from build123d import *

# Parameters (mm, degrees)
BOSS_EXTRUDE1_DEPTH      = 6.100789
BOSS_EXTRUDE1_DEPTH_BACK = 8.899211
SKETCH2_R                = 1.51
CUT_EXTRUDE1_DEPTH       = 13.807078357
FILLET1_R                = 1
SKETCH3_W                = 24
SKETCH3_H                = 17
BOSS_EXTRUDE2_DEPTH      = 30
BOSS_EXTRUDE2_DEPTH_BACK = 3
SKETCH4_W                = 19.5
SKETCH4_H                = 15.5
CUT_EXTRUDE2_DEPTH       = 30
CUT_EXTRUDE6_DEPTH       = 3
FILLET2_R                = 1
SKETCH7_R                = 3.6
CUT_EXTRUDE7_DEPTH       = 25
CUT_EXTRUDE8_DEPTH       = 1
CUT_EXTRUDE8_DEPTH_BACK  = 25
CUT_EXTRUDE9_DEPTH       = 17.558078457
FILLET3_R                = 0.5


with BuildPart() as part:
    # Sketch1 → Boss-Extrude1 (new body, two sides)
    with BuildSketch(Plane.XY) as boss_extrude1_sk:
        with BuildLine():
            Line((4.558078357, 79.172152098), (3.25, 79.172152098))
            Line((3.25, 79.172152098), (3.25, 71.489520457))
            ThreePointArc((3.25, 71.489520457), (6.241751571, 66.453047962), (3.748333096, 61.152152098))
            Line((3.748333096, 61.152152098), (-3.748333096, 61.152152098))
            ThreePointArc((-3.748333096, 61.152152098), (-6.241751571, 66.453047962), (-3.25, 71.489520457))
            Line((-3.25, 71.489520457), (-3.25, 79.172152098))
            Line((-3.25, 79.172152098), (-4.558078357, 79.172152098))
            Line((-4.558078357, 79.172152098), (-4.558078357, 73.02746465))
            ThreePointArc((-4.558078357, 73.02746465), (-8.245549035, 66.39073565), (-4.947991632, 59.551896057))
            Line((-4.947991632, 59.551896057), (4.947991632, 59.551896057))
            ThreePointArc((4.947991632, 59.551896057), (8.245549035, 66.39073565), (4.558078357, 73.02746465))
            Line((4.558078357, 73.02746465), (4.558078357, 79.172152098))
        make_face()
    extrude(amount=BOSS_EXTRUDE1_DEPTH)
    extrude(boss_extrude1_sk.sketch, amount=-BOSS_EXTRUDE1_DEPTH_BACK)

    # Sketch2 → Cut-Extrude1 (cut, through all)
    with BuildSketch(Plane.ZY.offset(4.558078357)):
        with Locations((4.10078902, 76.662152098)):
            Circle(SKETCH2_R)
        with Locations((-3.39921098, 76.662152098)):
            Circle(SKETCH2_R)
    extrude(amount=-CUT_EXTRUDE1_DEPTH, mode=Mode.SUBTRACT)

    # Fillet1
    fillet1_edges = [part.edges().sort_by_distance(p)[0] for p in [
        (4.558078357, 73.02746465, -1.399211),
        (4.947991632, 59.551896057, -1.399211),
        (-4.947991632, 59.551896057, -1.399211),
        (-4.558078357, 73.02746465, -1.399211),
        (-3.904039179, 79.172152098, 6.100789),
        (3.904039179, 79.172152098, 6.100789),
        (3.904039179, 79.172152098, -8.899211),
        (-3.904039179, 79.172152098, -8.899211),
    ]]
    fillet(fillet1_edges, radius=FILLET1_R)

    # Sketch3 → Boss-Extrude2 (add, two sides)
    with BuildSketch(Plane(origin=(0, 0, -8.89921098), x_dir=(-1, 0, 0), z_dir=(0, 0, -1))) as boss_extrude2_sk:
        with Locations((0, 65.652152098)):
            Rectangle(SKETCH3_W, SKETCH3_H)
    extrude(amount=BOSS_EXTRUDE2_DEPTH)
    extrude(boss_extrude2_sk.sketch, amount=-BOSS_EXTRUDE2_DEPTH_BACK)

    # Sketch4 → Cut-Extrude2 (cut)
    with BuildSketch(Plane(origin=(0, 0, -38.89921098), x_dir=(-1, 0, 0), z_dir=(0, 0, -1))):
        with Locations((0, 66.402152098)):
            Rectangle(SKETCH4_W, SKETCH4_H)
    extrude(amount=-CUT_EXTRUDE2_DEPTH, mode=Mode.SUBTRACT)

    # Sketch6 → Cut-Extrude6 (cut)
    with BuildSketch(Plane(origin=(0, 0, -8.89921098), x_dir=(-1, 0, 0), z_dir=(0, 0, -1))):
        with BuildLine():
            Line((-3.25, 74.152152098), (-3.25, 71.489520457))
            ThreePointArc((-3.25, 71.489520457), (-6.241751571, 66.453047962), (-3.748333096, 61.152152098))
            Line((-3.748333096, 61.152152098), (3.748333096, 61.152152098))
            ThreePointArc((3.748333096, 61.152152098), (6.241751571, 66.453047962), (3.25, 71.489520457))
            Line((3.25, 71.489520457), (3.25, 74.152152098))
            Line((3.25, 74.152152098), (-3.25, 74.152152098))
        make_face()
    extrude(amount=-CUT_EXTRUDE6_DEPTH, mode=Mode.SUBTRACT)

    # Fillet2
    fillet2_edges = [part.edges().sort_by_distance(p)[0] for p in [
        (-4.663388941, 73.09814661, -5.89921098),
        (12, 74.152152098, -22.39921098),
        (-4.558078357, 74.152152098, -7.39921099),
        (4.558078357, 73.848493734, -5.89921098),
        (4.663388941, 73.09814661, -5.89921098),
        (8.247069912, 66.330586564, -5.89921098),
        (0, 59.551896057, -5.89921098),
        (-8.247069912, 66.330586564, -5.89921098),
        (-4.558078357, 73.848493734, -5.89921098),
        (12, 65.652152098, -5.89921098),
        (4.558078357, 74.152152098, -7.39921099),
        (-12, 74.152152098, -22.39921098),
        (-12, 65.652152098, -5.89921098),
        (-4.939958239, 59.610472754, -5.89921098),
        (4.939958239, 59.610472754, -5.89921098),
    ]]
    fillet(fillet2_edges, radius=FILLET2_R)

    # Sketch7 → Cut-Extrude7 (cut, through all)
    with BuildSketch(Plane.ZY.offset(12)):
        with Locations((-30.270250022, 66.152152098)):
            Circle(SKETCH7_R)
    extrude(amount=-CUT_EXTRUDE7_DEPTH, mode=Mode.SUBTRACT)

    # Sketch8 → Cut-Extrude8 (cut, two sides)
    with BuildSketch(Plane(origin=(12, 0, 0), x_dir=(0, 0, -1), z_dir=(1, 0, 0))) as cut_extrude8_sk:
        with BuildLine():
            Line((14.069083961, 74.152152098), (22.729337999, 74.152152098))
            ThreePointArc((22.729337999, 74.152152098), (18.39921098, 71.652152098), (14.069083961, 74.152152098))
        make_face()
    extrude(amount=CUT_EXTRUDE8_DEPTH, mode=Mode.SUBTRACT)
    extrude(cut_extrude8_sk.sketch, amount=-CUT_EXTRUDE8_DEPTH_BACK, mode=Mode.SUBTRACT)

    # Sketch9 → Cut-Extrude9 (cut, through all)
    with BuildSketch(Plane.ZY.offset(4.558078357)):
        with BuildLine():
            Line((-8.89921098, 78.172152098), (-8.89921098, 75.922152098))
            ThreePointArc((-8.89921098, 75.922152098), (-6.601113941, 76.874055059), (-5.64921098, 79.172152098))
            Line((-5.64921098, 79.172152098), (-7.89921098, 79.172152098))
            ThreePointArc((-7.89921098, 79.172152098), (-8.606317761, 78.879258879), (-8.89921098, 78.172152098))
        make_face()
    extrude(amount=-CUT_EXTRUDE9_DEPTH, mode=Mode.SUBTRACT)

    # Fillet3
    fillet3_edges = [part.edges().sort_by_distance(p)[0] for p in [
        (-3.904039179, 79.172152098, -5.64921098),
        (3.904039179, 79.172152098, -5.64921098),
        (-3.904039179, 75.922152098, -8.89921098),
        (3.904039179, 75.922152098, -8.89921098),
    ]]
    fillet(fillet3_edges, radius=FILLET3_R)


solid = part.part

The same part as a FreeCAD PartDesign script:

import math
import FreeCAD as App
import Part
import Sketcher

V = App.Vector


def edges_at(feature, points):
    """Names of the edges that pass closest to the given points."""
    edges = feature.Shape.Edges
    near = lambda p: min(range(len(edges)), key=lambda i: edges[i].distToShape(Part.Vertex(*p))[0])
    return sorted({f"Edge{near(p) + 1}" for p in points})


def add_polygon(sketch, points):
    """Adds a closed chain of lines whose ends are joined by coincident constraints."""
    first, n = sketch.GeometryCount, len(points)
    for a, b in zip(points, points[1:] + points[:1]):
        sketch.addGeometry(Part.LineSegment(App.Vector(*a, 0), App.Vector(*b, 0)), False)
    for i in range(n):
        sketch.addConstraint(Sketcher.Constraint("Coincident", first + i, 2, first + (i + 1) % n, 1))

doc = App.newDocument("Part")
body = doc.addObject("PartDesign::Body", "Body")

sketch1 = body.newObject("Sketcher::SketchObject", "Sketch")
sketch1.AttachmentSupport = (doc.getObject("XY_Plane"), [""])
sketch1.MapMode = "FlatFace"
sketch1.addGeometry(Part.LineSegment(V(4.6, 79.2, 0), V(3.2, 79.2, 0)), False)
sketch1.addGeometry(Part.LineSegment(V(3.2, 79.2, 0), V(3.2, 71.5, 0)), False)
sketch1.addGeometry(Part.ArcOfCircle(Part.Circle(V(0, 66.2, 0), V(0, 0, 1), 6.2), math.radians(-53), math.radians(59)), False)
sketch1.addGeometry(Part.LineSegment(V(3.7, 61.2, 0), V(-3.7, 61.2, 0)), False)
sketch1.addGeometry(Part.ArcOfCircle(Part.Circle(V(0, 66.2, 0), V(0, 0, 1), 6.2), math.radians(121), math.radians(233)), False)
sketch1.addGeometry(Part.LineSegment(V(-3.2, 71.5, 0), V(-3.2, 79.2, 0)), False)
sketch1.addGeometry(Part.LineSegment(V(-3.2, 79.2, 0), V(-4.6, 79.2, 0)), False)
sketch1.addGeometry(Part.LineSegment(V(-4.6, 79.2, 0), V(-4.6, 73, 0)), False)
sketch1.addGeometry(Part.ArcOfCircle(Part.Circle(V(0, 66.2, 0), V(0, 0, 1), 8.2), math.radians(124), math.radians(233)), False)
sketch1.addGeometry(Part.LineSegment(V(-4.9, 59.6, 0), V(4.9, 59.6, 0)), False)
sketch1.addGeometry(Part.ArcOfCircle(Part.Circle(V(0, 66.2, 0), V(0, 0, 1), 8.2), math.radians(-53), math.radians(56)), False)
sketch1.addGeometry(Part.LineSegment(V(4.6, 73, 0), V(4.6, 79.2, 0)), False)
sketch1.addConstraint(Sketcher.Constraint("Coincident", 0, 2, 1, 1))
sketch1.addConstraint(Sketcher.Constraint("Coincident", 1, 2, 2, 2))
sketch1.addConstraint(Sketcher.Constraint("Coincident", 2, 1, 3, 1))
sketch1.addConstraint(Sketcher.Constraint("Coincident", 3, 2, 4, 2))
sketch1.addConstraint(Sketcher.Constraint("Coincident", 4, 1, 5, 1))
sketch1.addConstraint(Sketcher.Constraint("Coincident", 5, 2, 6, 1))
sketch1.addConstraint(Sketcher.Constraint("Coincident", 6, 2, 7, 1))
sketch1.addConstraint(Sketcher.Constraint("Coincident", 7, 2, 8, 1))
sketch1.addConstraint(Sketcher.Constraint("Coincident", 8, 2, 9, 1))
sketch1.addConstraint(Sketcher.Constraint("Coincident", 9, 2, 10, 1))
sketch1.addConstraint(Sketcher.Constraint("Coincident", 10, 2, 11, 1))
sketch1.addConstraint(Sketcher.Constraint("Coincident", 11, 2, 0, 1))
sketch1.addConstraint(Sketcher.Constraint("Horizontal", 0))
sketch1.addConstraint(Sketcher.Constraint("Vertical", 1))
sketch1.addConstraint(Sketcher.Constraint("Horizontal", 3))
sketch1.addConstraint(Sketcher.Constraint("Vertical", 5))
sketch1.addConstraint(Sketcher.Constraint("Horizontal", 6))
sketch1.addConstraint(Sketcher.Constraint("Vertical", 7))
sketch1.addConstraint(Sketcher.Constraint("Horizontal", 9))
sketch1.addConstraint(Sketcher.Constraint("Vertical", 11))
sketch1.addConstraint(Sketcher.Constraint("Coincident", 4, 3, 2, 3))
sketch1.addConstraint(Sketcher.Constraint("Coincident", 8, 3, 2, 3))
sketch1.addConstraint(Sketcher.Constraint("Coincident", 10, 3, 2, 3))
sketch1.addConstraint(Sketcher.Constraint("Equal", 2, 4))
sketch1.addConstraint(Sketcher.Constraint("Equal", 8, 10))
sketch1.addConstraint(Sketcher.Constraint("Symmetric", 1, 2, 4, 1, -2))
sketch1.addConstraint(Sketcher.Constraint("Symmetric", 6, 2, 11, 2, -2))
sketch1.addConstraint(Sketcher.Constraint("Radius", 2, 6.249))
sketch1.addConstraint(Sketcher.Constraint("Radius", 8, 8.249))
sketch1.addConstraint(Sketcher.Constraint("DistanceY", 2, 1, 4, 3, 5.0))
sketch1.addConstraint(Sketcher.Constraint("DistanceX", 4, 1, 1, 2, 6.5))
sketch1.addConstraint(Sketcher.Constraint("DistanceY", 4, 3, 0, 2, 13.02))
sketch1.addConstraint(Sketcher.Constraint("DistanceX", 0, 2, 0, 1, 1.308078))
sketch1.addConstraint(Sketcher.Constraint("DistanceX", 9, 1, 9, 2, 9.895983))
sketch1.addConstraint(Sketcher.Constraint("DistanceY", -1, 1, 1, 2, 71.48952))
pad1 = body.newObject("PartDesign::Pad", "Pad")
pad1.Profile = sketch1
pad1.Type = "TwoLengths"
pad1.Length = 6.100789
pad1.Length2 = 8.899211

sketch2 = body.newObject("Sketcher::SketchObject", "Sketch001")
sketch2.AttachmentSupport = (doc.getObject("YZ_Plane"), [""])
sketch2.MapMode = "FlatFace"
sketch2.AttachmentOffset = App.Placement(V(0, 0, -4.558078), App.Rotation())
sketch2.addGeometry(Part.Circle(V(76.7, 4.1, 0), V(0, 0, 1), 1.5), False)
sketch2.addGeometry(Part.Circle(V(76.7, -3.4, 0), V(0, 0, 1), 1.5), False)
sketch2.addConstraint(Sketcher.Constraint("Equal", 0, 1))
sketch2.addConstraint(Sketcher.Constraint("Vertical", 0, 3, 1, 3))
sketch2.addConstraint(Sketcher.Constraint("Diameter", 0, 3.02))
sketch2.addConstraint(Sketcher.Constraint("DistanceY", 1, 3, 0, 3, 7.5))
sketch2.addConstraint(Sketcher.Constraint("DistanceY", -1, 1, 0, 3, 4.100789))
sketch2.addConstraint(Sketcher.Constraint("DistanceX", -1, 1, 0, 3, 76.662152))
pocket1 = body.newObject("PartDesign::Pocket", "Pocket")
pocket1.Profile = sketch2
pocket1.Type = "ThroughAll"
pocket1.Reversed = True
doc.recompute()

fillet = body.newObject("PartDesign::Fillet", "Fillet")
fillet.Base = (pocket1, edges_at(pocket1, [
    (4.558, 73.027, -1.399),
    (4.948, 59.552, -1.399),
    (-4.948, 59.552, -1.399),
    (-4.558, 73.027, -1.399),
    (-3.904, 79.172, 6.101),
    (3.904, 79.172, 6.101),
    (3.904, 79.172, -8.899),
    (-3.904, 79.172, -8.899),
]))
fillet.Radius = 1

sketch3 = body.newObject("Sketcher::SketchObject", "Sketch002")
sketch3.AttachmentSupport = (doc.getObject("XY_Plane"), [""])
sketch3.MapMode = "FlatFace"
sketch3.AttachmentOffset = App.Placement(V(0, 0, -8.899211), App.Rotation())
add_polygon(sketch3, [(12, 74), (12, 57), (-12, 57), (-12, 74)])
sketch3.addConstraint(Sketcher.Constraint("Vertical", 0))
sketch3.addConstraint(Sketcher.Constraint("Horizontal", 1))
sketch3.addConstraint(Sketcher.Constraint("Vertical", 2))
sketch3.addConstraint(Sketcher.Constraint("Horizontal", 3))
sketch3.addConstraint(Sketcher.Constraint("DistanceX", 1, 2, 1, 1, 24.0))
sketch3.addConstraint(Sketcher.Constraint("DistanceY", 0, 2, 0, 1, 17.0))
sketch3.addConstraint(Sketcher.Constraint("DistanceX", -1, 1, 0, 2, 12.0))
sketch3.addConstraint(Sketcher.Constraint("DistanceY", -1, 1, 0, 2, 57.152152))
pad2 = body.newObject("PartDesign::Pad", "Pad001")
pad2.Profile = sketch3
pad2.Type = "TwoLengths"
pad2.Length = 30
pad2.Length2 = 3
pad2.Reversed = True

sketch4 = body.newObject("Sketcher::SketchObject", "Sketch003")
sketch4.AttachmentSupport = (doc.getObject("XY_Plane"), [""])
sketch4.MapMode = "FlatFace"
sketch4.AttachmentOffset = App.Placement(V(0, 0, -38.899211), App.Rotation())
add_polygon(sketch4, [(10, 74), (10, 59), (-10, 59), (-10, 74)])
sketch4.addConstraint(Sketcher.Constraint("Vertical", 0))
sketch4.addConstraint(Sketcher.Constraint("Horizontal", 1))
sketch4.addConstraint(Sketcher.Constraint("Vertical", 2))
sketch4.addConstraint(Sketcher.Constraint("Horizontal", 3))
sketch4.addConstraint(Sketcher.Constraint("DistanceX", 1, 2, 1, 1, 19.5))
sketch4.addConstraint(Sketcher.Constraint("DistanceY", 0, 2, 0, 1, 15.5))
sketch4.addConstraint(Sketcher.Constraint("DistanceX", -1, 1, 0, 2, 9.75))
sketch4.addConstraint(Sketcher.Constraint("DistanceY", -1, 1, 0, 2, 58.652152))
pocket2 = body.newObject("PartDesign::Pocket", "Pocket001")
pocket2.Profile = sketch4
pocket2.Length = 30
pocket2.Reversed = True

sketch5 = body.newObject("Sketcher::SketchObject", "Sketch004")
sketch5.AttachmentSupport = (doc.getObject("XY_Plane"), [""])
sketch5.MapMode = "FlatFace"
sketch5.AttachmentOffset = App.Placement(V(0, 0, -8.899211), App.Rotation())
sketch5.addGeometry(Part.LineSegment(V(3.2, 74.2, 0), V(3.2, 71.5, 0)), False)
sketch5.addGeometry(Part.ArcOfCircle(Part.Circle(V(0, 66.2, 0), V(0, 0, 1), 6.2), math.radians(-53), math.radians(59)), False)
sketch5.addGeometry(Part.LineSegment(V(3.7, 61.2, 0), V(-3.7, 61.2, 0)), False)
sketch5.addGeometry(Part.ArcOfCircle(Part.Circle(V(0, 66.2, 0), V(0, 0, 1), 6.2), math.radians(121), math.radians(233)), False)
sketch5.addGeometry(Part.LineSegment(V(-3.2, 71.5, 0), V(-3.2, 74.2, 0)), False)
sketch5.addGeometry(Part.LineSegment(V(-3.2, 74.2, 0), V(3.2, 74.2, 0)), False)
sketch5.addConstraint(Sketcher.Constraint("Coincident", 0, 2, 1, 2))
sketch5.addConstraint(Sketcher.Constraint("Coincident", 1, 1, 2, 1))
sketch5.addConstraint(Sketcher.Constraint("Coincident", 2, 2, 3, 2))
sketch5.addConstraint(Sketcher.Constraint("Coincident", 3, 1, 4, 1))
sketch5.addConstraint(Sketcher.Constraint("Coincident", 4, 2, 5, 1))
sketch5.addConstraint(Sketcher.Constraint("Coincident", 5, 2, 0, 1))
sketch5.addConstraint(Sketcher.Constraint("Vertical", 0))
sketch5.addConstraint(Sketcher.Constraint("Horizontal", 2))
sketch5.addConstraint(Sketcher.Constraint("Vertical", 4))
sketch5.addConstraint(Sketcher.Constraint("Horizontal", 5))
sketch5.addConstraint(Sketcher.Constraint("Coincident", 3, 3, 1, 3))
sketch5.addConstraint(Sketcher.Constraint("Equal", 1, 3))
sketch5.addConstraint(Sketcher.Constraint("Symmetric", 0, 2, 3, 1, -2))
sketch5.addConstraint(Sketcher.Constraint("DistanceX", 5, 1, 5, 2, 6.5))
sketch5.addConstraint(Sketcher.Constraint("Radius", 1, 6.249))
sketch5.addConstraint(Sketcher.Constraint("DistanceY", 1, 1, 3, 3, 5.0))
sketch5.addConstraint(Sketcher.Constraint("DistanceY", 1, 3, 4, 2, 8.0))
sketch5.addConstraint(Sketcher.Constraint("DistanceY", -1, 1, 0, 2, 71.48952))
pocket3 = body.newObject("PartDesign::Pocket", "Pocket002")
pocket3.Profile = sketch5
pocket3.Length = 3
pocket3.Reversed = True
doc.recompute()

fillet2 = body.newObject("PartDesign::Fillet", "Fillet001")
fillet2.Base = (pocket3, edges_at(pocket3, [
    (-4.663, 73.098, -5.899),
    (12, 74.152, -22.399),
    (-4.558, 74.152, -7.399),
    (4.558, 73.848, -5.899),
    (4.663, 73.098, -5.899),
    (8.247, 66.331, -5.899),
    (0, 59.552, -5.899),
    (-8.247, 66.331, -5.899),
    (-4.558, 73.848, -5.899),
    (12, 65.652, -5.899),
    (4.558, 74.152, -7.399),
    (-12, 74.152, -22.399),
    (-12, 65.652, -5.899),
    (-4.94, 59.61, -5.899),
    (4.94, 59.61, -5.899),
]))
fillet2.Radius = 1

sketch6 = body.newObject("Sketcher::SketchObject", "Sketch005")
sketch6.AttachmentSupport = (doc.getObject("YZ_Plane"), [""])
sketch6.MapMode = "FlatFace"
sketch6.AttachmentOffset = App.Placement(V(0, 0, -12), App.Rotation())
sketch6.addGeometry(Part.Circle(V(66.2, -30.3, 0), V(0, 0, 1), 3.6), False)
sketch6.addConstraint(Sketcher.Constraint("Diameter", 0, 7.2))
sketch6.addConstraint(Sketcher.Constraint("DistanceY", 0, 3, -1, 1, 30.27025))
sketch6.addConstraint(Sketcher.Constraint("DistanceX", -1, 1, 0, 3, 66.152152))
pocket4 = body.newObject("PartDesign::Pocket", "Pocket003")
pocket4.Profile = sketch6
pocket4.Type = "ThroughAll"
pocket4.Reversed = True

sketch7 = body.newObject("Sketcher::SketchObject", "Sketch006")
sketch7.AttachmentSupport = (doc.getObject("YZ_Plane"), [""])
sketch7.MapMode = "FlatFace"
sketch7.AttachmentOffset = App.Placement(V(0, 0, 12), App.Rotation())
sketch7.addGeometry(Part.LineSegment(V(74, -23, 0), V(74, -14, 0)), False)
sketch7.addGeometry(Part.ArcOfCircle(Part.Circle(V(77, -18, 0), V(0, 0, 1), 5), math.radians(120), math.radians(240)), False)
sketch7.addConstraint(Sketcher.Constraint("Coincident", 0, 1, 1, 2))
sketch7.addConstraint(Sketcher.Constraint("Coincident", 1, 1, 0, 2))
sketch7.addConstraint(Sketcher.Constraint("Vertical", 0))
sketch7.addConstraint(Sketcher.Constraint("Radius", 1, 5.0))
sketch7.addConstraint(Sketcher.Constraint("DistanceX", 0, 1, 1, 3, 2.5))
sketch7.addConstraint(Sketcher.Constraint("DistanceY", 1, 3, -1, 1, 18.399211))
sketch7.addConstraint(Sketcher.Constraint("DistanceX", -1, 1, 1, 3, 76.652152))
pocket5 = body.newObject("PartDesign::Pocket", "Pocket004")
pocket5.Profile = sketch7
pocket5.Type = "ThroughAll"
pocket5.Midplane = True

sketch8 = body.newObject("Sketcher::SketchObject", "Sketch007")
sketch8.AttachmentSupport = (doc.getObject("YZ_Plane"), [""])
sketch8.MapMode = "FlatFace"
sketch8.AttachmentOffset = App.Placement(V(0, 0, -4.558078), App.Rotation())
sketch8.addGeometry(Part.LineSegment(V(78.2, -8.9, 0), V(75.9, -8.9, 0)), False)
sketch8.addGeometry(Part.ArcOfCircle(Part.Circle(V(79.2, -8.9, 0), V(0, 0, 1), 3.2), math.radians(90), math.radians(180)), False)
sketch8.addGeometry(Part.LineSegment(V(79.2, -5.6, 0), V(79.2, -7.9, 0)), False)
sketch8.addGeometry(Part.ArcOfCircle(Part.Circle(V(78.2, -7.9, 0), V(0, 0, 1), 1), math.radians(-90), math.radians(0)), False)
sketch8.addConstraint(Sketcher.Constraint("Coincident", 0, 2, 1, 2))
sketch8.addConstraint(Sketcher.Constraint("Coincident", 1, 1, 2, 1))
sketch8.addConstraint(Sketcher.Constraint("Tangent", 2, 2, 3, 2))
sketch8.addConstraint(Sketcher.Constraint("Tangent", 3, 1, 0, 1))
sketch8.addConstraint(Sketcher.Constraint("Horizontal", 0))
sketch8.addConstraint(Sketcher.Constraint("Vertical", 2))
sketch8.addConstraint(Sketcher.Constraint("Horizontal", 1, 3, 0, 2))
sketch8.addConstraint(Sketcher.Constraint("Equal", 0, 2))
sketch8.addConstraint(Sketcher.Constraint("Radius", 3, 1.0))
sketch8.addConstraint(Sketcher.Constraint("Radius", 1, 3.25))
sketch8.addConstraint(Sketcher.Constraint("DistanceY", 1, 3, -1, 1, 8.899211))
sketch8.addConstraint(Sketcher.Constraint("DistanceX", -1, 1, 1, 3, 79.172152))
pocket6 = body.newObject("PartDesign::Pocket", "Pocket005")
pocket6.Profile = sketch8
pocket6.Type = "ThroughAll"
pocket6.Reversed = True
doc.recompute()

fillet3 = body.newObject("PartDesign::Fillet", "Fillet002")
fillet3.Base = (pocket6, edges_at(pocket6, [
    (-3.904, 79.172, -5.649),
    (3.904, 79.172, -5.649),
    (-3.904, 75.922, -8.899),
    (3.904, 75.922, -8.899),
]))
fillet3.Radius = 0.5

doc.recompute()
